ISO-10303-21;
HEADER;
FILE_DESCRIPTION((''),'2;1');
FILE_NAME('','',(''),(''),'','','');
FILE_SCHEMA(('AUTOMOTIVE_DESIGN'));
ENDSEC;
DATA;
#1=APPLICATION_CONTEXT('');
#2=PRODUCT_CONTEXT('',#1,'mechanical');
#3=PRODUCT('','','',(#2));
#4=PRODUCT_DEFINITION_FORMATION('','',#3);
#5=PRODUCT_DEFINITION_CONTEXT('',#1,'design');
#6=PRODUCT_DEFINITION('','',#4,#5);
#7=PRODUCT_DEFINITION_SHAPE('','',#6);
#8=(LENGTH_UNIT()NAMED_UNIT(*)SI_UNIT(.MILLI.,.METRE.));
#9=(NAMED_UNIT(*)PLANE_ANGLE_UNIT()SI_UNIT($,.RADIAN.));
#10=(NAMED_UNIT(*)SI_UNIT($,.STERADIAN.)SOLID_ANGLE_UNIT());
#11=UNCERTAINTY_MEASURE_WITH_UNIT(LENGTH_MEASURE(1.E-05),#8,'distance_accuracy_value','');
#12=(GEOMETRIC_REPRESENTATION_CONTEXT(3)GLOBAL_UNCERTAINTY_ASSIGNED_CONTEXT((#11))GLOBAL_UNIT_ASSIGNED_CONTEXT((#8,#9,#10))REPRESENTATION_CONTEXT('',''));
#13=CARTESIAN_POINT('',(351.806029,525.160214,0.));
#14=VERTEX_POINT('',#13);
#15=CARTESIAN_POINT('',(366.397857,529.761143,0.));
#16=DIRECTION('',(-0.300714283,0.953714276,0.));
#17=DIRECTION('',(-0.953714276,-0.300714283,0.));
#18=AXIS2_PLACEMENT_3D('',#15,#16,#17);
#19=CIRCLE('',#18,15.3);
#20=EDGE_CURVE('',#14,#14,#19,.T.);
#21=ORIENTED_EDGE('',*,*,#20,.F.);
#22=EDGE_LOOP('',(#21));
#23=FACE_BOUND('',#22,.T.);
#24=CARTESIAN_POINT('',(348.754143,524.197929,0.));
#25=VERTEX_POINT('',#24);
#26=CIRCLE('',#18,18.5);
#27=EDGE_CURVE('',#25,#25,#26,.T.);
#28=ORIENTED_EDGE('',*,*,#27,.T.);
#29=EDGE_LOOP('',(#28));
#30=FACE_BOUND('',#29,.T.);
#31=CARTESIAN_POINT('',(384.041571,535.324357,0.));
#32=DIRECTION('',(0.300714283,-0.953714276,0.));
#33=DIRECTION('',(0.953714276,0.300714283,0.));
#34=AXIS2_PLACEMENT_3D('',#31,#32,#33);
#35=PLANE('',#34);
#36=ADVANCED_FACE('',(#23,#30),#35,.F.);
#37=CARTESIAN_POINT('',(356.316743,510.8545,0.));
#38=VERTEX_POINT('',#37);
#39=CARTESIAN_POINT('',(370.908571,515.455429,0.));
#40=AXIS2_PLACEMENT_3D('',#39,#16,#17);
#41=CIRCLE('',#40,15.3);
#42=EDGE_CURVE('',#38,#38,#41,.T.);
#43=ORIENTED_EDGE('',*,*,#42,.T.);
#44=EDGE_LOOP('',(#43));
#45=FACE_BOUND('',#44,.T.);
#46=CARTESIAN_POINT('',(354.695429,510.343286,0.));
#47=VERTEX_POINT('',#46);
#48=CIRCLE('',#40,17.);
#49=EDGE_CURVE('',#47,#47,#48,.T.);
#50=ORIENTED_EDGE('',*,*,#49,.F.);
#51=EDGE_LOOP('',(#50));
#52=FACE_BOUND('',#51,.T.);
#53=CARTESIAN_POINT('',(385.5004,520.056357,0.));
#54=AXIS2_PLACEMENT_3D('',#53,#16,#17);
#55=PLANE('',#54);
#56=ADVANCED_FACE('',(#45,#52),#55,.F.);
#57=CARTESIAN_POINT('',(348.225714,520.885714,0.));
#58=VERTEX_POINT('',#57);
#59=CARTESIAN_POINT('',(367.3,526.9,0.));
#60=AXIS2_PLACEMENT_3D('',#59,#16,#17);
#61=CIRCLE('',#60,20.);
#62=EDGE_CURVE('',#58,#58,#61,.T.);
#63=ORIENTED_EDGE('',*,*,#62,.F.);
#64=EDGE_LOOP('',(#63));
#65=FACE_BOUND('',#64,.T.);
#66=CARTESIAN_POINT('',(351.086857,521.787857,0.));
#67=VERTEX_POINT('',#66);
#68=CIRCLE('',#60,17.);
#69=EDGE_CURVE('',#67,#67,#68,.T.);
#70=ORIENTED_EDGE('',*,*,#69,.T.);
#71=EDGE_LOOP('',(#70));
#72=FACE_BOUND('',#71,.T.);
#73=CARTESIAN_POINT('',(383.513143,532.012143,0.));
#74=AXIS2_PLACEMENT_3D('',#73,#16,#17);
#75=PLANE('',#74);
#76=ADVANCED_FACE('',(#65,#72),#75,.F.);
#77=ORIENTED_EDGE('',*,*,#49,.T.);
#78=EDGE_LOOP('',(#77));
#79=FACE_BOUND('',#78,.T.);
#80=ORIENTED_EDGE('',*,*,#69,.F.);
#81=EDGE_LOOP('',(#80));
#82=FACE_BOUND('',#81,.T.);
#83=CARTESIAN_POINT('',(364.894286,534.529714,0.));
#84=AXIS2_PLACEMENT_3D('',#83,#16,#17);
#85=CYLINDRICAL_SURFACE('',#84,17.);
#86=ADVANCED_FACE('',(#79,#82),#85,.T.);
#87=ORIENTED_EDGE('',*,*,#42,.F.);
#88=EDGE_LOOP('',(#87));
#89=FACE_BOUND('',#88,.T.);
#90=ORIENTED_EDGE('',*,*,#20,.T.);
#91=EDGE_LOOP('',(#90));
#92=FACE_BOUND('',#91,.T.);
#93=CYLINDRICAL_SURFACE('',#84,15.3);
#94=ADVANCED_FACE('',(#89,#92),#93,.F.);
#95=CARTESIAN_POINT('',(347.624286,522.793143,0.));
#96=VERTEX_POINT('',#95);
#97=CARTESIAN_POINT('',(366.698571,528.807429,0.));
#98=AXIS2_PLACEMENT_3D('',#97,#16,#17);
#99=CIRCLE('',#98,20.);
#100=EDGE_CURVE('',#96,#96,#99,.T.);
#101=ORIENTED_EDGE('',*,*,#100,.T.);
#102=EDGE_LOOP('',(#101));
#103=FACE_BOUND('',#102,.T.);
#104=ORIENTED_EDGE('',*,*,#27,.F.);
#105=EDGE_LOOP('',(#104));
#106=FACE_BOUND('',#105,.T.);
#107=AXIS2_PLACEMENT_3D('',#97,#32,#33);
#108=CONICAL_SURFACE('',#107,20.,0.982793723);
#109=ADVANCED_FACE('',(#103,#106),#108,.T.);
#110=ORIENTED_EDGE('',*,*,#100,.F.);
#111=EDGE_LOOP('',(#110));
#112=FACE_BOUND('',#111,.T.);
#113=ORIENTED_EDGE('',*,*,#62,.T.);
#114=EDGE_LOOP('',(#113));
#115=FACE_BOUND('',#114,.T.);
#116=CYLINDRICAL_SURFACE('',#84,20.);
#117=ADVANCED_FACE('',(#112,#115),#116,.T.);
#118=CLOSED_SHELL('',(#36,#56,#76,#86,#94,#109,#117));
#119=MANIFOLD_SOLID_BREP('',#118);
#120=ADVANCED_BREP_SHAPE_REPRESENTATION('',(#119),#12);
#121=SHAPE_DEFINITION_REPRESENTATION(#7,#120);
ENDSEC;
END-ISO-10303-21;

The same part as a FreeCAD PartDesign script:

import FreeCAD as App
import Part
import Sketcher
from FreeCAD import Vector
Q = App.Units.Quantity

doc = App.newDocument("Part")
params = doc.addObject("Spreadsheet::Sheet", "Params")
for row, (alias, value) in enumerate([
    ("sketch1_length", "12 mm"),
    ("sketch1_length2", "3 mm"),
    ("sketch1_length3", "2 mm"),
    ("sketch1_length4", "15 mm"),
    ("sketch1_length5", "1.7 mm"),
    ("revolution_angle", "360 deg"),
], start=1):
    params.set(f"A{row}", alias)
    params.set(f"B{row}", "=" + value)
    params.setAlias(f"B{row}", alias)

body = doc.addObject("PartDesign::Body", "Body")

# Sketch on XY plane
sketch1 = doc.addObject("Sketcher::SketchObject", "Sketch")
body.addObject(sketch1)
sketch1.AttachmentSupport = (doc.XY_Plane, [""])
sketch1.MapMode = "FlatFace"
sketch1.addGeometry(Part.LineSegment(Vector(385.5004, 520.056357, 0), Vector(387.121714, 520.567571, 0)), False)
sketch1.addGeometry(Part.LineSegment(Vector(387.121714, 520.567571, 0), Vector(383.513143, 532.012143, 0)), False)
sketch1.addGeometry(Part.LineSegment(Vector(383.513143, 532.012143, 0), Vector(386.374286, 532.914286, 0)), False)
sketch1.addGeometry(Part.LineSegment(Vector(386.374286, 532.914286, 0), Vector(385.772857, 534.821714, 0)), False)
sketch1.addGeometry(Part.LineSegment(Vector(385.772857, 534.821714, 0), Vector(384.041571, 535.324357, 0)), False)
sketch1.addGeometry(Part.LineSegment(Vector(384.041571, 535.324357, 0), Vector(380.989686, 534.362071, 0)), False)
sketch1.addGeometry(Part.LineSegment(Vector(380.989686, 534.362071, 0), Vector(385.5004, 520.056357, 0)), False)
sketch1.addGeometry(Part.LineSegment(Vector(366.397857, 529.761143, 0), Vector(370.908571, 515.455429, 0)), True)  # axis
sketch1.addConstraint(Sketcher.Constraint("Coincident", 0, 2, 1, 1))
sketch1.addConstraint(Sketcher.Constraint("Coincident", 1, 2, 2, 1))
sketch1.addConstraint(Sketcher.Constraint("Coincident", 2, 2, 3, 1))
sketch1.addConstraint(Sketcher.Constraint("Coincident", 3, 2, 4, 1))
sketch1.addConstraint(Sketcher.Constraint("Coincident", 4, 2, 5, 1))
sketch1.addConstraint(Sketcher.Constraint("Coincident", 5, 2, 6, 1))
sketch1.addConstraint(Sketcher.Constraint("Coincident", 6, 2, 0, 1))
sketch1.addConstraint(Sketcher.Constraint("Perpendicular", 0, 1))
sketch1.addConstraint(Sketcher.Constraint("Perpendicular", 1, 2))
sketch1.addConstraint(Sketcher.Constraint("Perpendicular", 2, 3))
sketch1.addConstraint(Sketcher.Constraint("Perpendicular", 3, 5))
sketch1.addConstraint(Sketcher.Constraint("Perpendicular", 5, 6))
sketch1.addConstraint(Sketcher.Constraint("Parallel", 6, 7))
sketch1.addConstraint(Sketcher.Constraint("Equal", 6, 7))
sketch1.addConstraint(Sketcher.Constraint("Distance", 1, Q("12 mm")))
sketch1.addConstraint(Sketcher.Constraint("Distance", 2, Q("3 mm")))
sketch1.addConstraint(Sketcher.Constraint("Distance", 3, Q("2 mm")))
sketch1.addConstraint(Sketcher.Constraint("Distance", 6, Q("15 mm")))
sketch1.addConstraint(Sketcher.Constraint("Distance", 0, Q("1.7 mm")))
sketch1.addConstraint(Sketcher.Constraint("Distance", 5, Q("3.2 mm")))
sketch1.addConstraint(Sketcher.Constraint("DistanceY", 7, 1, 1, 2, Q("2.251 mm")))
sketch1.addConstraint(Sketcher.Constraint("DistanceX", 7, 1, 3, 2, Q("19.375 mm")))
sketch1.addConstraint(Sketcher.Constraint("DistanceX", -1, 1, 6, 2, Q("385.5004 mm")))
sketch1.addConstraint(Sketcher.Constraint("DistanceX", 5, 2, 2, 2, Q("5.3846 mm")))
sketch1.addConstraint(Sketcher.Constraint("DistanceY", -1, 1, 0, 2, Q("520.567571 mm")))
sketch1.setExpression("Constraints[14]", "Params.sketch1_length")
sketch1.setExpression("Constraints[15]", "Params.sketch1_length2")
sketch1.setExpression("Constraints[16]", "Params.sketch1_length3")
sketch1.setExpression("Constraints[17]", "Params.sketch1_length4")
sketch1.setExpression("Constraints[18]", "Params.sketch1_length5")
revolution = doc.addObject("PartDesign::Revolution", "Revolution")
body.addObject(revolution)
revolution.Profile = sketch1
revolution.ReferenceAxis = (sketch1, ["Axis0"])
revolution.setExpression("Angle", "Params.revolution_angle")

doc.recompute()
